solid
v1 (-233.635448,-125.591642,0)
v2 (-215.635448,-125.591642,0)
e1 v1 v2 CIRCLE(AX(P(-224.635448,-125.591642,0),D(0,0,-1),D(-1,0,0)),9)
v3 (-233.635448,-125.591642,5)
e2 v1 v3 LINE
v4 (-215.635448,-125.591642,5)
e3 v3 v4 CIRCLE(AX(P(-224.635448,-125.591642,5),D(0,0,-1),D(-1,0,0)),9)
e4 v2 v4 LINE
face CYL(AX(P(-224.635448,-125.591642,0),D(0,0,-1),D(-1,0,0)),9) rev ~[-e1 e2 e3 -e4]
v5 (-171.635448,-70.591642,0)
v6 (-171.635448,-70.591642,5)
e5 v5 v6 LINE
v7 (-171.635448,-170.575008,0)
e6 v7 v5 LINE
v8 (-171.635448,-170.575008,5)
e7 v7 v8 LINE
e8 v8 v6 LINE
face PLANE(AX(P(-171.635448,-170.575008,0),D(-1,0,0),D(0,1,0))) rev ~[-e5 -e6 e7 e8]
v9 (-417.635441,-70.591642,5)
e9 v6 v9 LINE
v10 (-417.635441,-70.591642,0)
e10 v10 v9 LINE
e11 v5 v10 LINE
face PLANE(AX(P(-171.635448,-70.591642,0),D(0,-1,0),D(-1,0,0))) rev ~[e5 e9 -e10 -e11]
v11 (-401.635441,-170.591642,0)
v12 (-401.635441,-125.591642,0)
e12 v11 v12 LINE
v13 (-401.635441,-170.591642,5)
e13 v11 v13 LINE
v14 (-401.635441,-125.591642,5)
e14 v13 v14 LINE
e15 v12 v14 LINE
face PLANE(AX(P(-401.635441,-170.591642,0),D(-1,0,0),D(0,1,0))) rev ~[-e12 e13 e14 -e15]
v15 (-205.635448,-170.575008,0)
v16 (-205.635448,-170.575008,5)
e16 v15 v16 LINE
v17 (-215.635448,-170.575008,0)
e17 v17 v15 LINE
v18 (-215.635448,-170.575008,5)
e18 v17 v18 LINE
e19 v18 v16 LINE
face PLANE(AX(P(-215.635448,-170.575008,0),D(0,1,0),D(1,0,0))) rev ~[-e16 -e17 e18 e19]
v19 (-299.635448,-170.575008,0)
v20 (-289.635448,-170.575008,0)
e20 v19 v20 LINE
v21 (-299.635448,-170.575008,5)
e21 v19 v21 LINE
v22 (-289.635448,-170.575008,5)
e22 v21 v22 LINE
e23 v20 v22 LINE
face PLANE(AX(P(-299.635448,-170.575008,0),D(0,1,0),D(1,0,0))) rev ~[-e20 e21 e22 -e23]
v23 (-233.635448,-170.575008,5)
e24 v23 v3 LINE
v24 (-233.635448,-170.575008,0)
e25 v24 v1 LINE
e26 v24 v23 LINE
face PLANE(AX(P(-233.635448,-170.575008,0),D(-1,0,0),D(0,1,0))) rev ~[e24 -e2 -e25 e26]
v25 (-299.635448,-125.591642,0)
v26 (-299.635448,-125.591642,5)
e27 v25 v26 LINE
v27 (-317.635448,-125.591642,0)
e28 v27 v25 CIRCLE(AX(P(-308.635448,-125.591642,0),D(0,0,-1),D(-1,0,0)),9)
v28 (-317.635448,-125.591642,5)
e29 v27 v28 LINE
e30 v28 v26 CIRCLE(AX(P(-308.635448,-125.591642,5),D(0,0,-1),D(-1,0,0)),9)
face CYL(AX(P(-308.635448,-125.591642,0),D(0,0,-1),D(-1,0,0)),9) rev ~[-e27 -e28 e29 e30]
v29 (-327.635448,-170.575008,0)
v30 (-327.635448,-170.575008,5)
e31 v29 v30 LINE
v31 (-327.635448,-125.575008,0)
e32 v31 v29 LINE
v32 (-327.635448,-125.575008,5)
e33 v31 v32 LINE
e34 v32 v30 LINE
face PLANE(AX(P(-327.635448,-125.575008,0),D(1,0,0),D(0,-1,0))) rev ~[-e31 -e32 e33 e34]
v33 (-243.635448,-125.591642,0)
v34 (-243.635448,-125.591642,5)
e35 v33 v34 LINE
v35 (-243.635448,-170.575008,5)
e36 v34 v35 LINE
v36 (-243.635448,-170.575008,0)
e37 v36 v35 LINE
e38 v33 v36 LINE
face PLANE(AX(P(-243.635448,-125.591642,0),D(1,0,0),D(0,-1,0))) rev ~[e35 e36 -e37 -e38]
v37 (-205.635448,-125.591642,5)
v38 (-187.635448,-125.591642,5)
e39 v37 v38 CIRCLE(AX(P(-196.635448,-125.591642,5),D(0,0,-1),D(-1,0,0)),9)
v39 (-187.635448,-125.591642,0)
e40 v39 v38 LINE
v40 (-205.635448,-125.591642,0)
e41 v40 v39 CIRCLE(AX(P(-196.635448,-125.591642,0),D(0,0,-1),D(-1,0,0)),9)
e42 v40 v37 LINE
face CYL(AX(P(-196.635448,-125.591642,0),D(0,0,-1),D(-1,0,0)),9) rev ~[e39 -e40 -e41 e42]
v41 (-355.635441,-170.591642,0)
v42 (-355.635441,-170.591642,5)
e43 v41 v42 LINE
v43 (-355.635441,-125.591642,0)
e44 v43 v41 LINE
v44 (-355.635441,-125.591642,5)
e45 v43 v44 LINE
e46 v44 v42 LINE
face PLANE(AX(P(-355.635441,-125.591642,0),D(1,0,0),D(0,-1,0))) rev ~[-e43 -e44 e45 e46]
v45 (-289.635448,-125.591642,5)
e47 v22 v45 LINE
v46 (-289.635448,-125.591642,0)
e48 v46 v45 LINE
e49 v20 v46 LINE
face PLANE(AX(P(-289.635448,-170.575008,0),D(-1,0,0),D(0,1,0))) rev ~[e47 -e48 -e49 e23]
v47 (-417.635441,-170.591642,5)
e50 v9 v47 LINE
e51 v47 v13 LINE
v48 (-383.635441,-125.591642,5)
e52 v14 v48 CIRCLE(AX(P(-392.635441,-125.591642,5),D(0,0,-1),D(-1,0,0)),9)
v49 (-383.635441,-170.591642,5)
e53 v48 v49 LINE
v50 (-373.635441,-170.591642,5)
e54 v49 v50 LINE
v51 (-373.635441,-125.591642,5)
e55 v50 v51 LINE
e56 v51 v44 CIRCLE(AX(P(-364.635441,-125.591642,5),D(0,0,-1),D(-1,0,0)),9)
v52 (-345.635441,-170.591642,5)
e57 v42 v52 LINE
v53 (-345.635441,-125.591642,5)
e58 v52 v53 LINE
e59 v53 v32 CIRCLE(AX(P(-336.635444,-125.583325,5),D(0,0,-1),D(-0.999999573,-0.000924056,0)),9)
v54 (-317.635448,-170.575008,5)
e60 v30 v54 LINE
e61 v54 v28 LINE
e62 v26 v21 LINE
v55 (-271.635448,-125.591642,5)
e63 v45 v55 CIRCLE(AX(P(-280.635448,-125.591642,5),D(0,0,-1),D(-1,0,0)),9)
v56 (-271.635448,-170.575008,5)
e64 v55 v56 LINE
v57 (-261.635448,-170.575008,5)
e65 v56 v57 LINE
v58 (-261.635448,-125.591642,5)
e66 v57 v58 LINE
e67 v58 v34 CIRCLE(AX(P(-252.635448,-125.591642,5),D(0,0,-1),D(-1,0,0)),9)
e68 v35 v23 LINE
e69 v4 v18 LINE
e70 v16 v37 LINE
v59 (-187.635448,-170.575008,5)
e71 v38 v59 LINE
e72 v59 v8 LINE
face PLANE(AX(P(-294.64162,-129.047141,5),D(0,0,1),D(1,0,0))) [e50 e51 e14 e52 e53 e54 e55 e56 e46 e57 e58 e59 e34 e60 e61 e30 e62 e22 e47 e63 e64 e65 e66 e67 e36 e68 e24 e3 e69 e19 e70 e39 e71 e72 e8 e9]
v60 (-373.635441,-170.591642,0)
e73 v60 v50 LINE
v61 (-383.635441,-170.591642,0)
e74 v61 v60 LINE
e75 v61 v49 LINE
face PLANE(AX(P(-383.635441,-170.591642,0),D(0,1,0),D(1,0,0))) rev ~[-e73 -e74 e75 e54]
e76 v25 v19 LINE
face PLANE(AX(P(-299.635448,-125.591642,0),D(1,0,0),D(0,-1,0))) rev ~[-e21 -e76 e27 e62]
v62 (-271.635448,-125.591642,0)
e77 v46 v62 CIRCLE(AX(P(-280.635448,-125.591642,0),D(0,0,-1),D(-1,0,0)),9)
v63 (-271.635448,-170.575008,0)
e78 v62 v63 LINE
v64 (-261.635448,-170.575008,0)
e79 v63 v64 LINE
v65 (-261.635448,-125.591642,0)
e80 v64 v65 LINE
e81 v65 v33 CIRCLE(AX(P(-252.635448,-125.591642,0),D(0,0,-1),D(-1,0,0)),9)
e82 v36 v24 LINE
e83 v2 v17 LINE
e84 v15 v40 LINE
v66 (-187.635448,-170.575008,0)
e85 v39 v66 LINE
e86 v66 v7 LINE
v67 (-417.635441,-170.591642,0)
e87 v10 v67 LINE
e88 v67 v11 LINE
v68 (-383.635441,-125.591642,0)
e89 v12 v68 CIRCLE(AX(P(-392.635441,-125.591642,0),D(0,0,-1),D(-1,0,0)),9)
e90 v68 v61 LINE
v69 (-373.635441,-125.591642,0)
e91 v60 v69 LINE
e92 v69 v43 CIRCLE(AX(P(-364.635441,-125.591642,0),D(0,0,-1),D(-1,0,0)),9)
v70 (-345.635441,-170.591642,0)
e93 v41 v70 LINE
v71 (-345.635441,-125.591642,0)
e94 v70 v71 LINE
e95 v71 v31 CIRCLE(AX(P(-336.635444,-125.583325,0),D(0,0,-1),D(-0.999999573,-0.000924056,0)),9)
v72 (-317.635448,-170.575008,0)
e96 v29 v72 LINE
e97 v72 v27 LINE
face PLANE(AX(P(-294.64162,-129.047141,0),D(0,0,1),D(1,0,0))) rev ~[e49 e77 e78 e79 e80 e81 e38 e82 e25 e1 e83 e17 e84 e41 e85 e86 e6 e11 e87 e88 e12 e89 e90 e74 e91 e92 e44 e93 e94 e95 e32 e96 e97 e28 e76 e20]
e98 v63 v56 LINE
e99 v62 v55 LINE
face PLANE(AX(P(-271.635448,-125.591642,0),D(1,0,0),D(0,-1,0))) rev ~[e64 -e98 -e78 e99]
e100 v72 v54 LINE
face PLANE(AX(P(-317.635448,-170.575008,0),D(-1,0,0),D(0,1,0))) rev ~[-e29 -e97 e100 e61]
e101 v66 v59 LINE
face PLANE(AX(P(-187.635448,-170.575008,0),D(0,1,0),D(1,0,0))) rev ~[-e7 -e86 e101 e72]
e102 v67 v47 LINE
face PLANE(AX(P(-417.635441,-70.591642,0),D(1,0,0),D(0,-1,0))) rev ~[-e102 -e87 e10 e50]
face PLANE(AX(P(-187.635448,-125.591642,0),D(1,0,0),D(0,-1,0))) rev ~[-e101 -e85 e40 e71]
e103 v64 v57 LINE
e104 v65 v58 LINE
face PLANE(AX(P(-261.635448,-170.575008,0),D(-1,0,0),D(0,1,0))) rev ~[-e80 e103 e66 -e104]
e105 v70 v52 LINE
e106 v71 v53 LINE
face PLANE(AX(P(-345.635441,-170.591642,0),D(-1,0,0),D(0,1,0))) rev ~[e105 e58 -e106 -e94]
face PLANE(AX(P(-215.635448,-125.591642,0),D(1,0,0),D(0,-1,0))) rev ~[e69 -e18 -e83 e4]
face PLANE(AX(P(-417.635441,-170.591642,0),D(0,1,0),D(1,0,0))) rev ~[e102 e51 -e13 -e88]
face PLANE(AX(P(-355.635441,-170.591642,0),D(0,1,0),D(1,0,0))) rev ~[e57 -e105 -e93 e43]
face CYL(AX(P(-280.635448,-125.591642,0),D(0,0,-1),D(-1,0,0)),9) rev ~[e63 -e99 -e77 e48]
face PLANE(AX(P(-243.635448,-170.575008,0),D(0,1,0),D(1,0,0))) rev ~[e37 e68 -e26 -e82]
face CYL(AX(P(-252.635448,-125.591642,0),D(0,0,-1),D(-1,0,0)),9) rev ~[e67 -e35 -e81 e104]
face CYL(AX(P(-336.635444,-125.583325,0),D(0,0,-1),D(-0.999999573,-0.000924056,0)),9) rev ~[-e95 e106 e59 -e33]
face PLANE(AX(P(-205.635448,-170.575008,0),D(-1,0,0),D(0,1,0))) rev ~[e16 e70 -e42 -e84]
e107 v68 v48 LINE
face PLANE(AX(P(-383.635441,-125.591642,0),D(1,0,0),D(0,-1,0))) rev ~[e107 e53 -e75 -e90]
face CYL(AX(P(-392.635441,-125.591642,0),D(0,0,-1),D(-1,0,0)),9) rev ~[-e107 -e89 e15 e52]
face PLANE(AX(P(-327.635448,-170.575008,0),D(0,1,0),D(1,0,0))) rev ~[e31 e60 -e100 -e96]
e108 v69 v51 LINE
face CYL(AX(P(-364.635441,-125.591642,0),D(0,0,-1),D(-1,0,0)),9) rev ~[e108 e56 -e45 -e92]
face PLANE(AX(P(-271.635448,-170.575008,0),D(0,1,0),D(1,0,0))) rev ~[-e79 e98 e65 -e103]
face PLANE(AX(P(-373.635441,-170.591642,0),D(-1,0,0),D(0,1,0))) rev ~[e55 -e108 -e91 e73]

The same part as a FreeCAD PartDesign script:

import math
import FreeCAD as App
import Part
import Sketcher

V = App.Vector

doc = App.newDocument("Part")
params = doc.addObject("Spreadsheet::Sheet", "Params")
for row, (alias, value) in enumerate([
    ("sketch1_radius", "9 mm"),
    ("sketch1_width", "16 mm"),
    ("sketch1_width2", "10 mm"),
    ("sketch1_height", "100 mm"),
    ("sketch1_height2", "45 mm"),
    ("pad1_length", "5 mm"),
], start=1):
    params.set(f"A{row}", alias)
    params.set(f"B{row}", "=" + value)
    params.setAlias(f"B{row}", alias)

body = doc.addObject("PartDesign::Body", "Body")

# Sketch on XY plane
sketch1 = body.newObject("Sketcher::SketchObject", "Sketch")
sketch1.AttachmentSupport = (doc.getObject("XY_Plane"), [""])
sketch1.MapMode = "FlatFace"
sketch1.addGeometry([
    Part.LineSegment(V(-171.635448, -70.591642, 0), V(-417.635441, -70.591642, 0)),  # 0
    Part.LineSegment(V(-417.635441, -70.591642, 0), V(-417.635441, -170.591642, 0)),  # 1
    Part.LineSegment(V(-417.635441, -170.591642, 0), V(-401.635441, -170.591642, 0)),  # 2
    Part.LineSegment(V(-401.635441, -170.591642, 0), V(-401.635441, -125.591642, 0)),  # 3
    Part.ArcOfCircle(Part.Circle(V(-392.635441, -125.591642, 0), V(0, 0, 1), 9), math.radians(0), math.radians(180)),  # 4
    Part.LineSegment(V(-383.635441, -125.591642, 0), V(-383.635441, -170.591642, 0)),  # 5
    Part.LineSegment(V(-383.635441, -170.591642, 0), V(-373.635441, -170.591642, 0)),  # 6
    Part.LineSegment(V(-373.635441, -170.591642, 0), V(-373.635441, -125.591642, 0)),  # 7
    Part.ArcOfCircle(Part.Circle(V(-364.635441, -125.591642, 0), V(0, 0, 1), 9), math.radians(0), math.radians(180)),  # 8
    Part.LineSegment(V(-355.635441, -125.591642, 0), V(-355.635441, -170.591642, 0)),  # 9
    Part.LineSegment(V(-355.635441, -170.591642, 0), V(-345.635441, -170.591642, 0)),  # 10
    Part.LineSegment(V(-345.635441, -170.591642, 0), V(-345.635441, -125.591642, 0)),  # 11
    Part.ArcOfCircle(Part.Circle(V(-336.635445, -125.583326, 0), V(0, 0, 1), 9), math.radians(0.052951), math.radians(180.052944)),  # 12
    Part.LineSegment(V(-327.635448, -125.575008, 0), V(-327.635448, -170.575008, 0)),  # 13
    Part.LineSegment(V(-327.635448, -170.575008, 0), V(-317.635448, -170.575008, 0)),  # 14
    Part.LineSegment(V(-317.635448, -170.575008, 0), V(-317.635448, -125.591642, 0)),  # 15
    Part.ArcOfCircle(Part.Circle(V(-308.635448, -125.591642, 0), V(0, 0, 1), 9), math.radians(0), math.radians(180)),  # 16
    Part.LineSegment(V(-299.635448, -125.591642, 0), V(-299.635448, -170.575008, 0)),  # 17
    Part.LineSegment(V(-299.635448, -170.575008, 0), V(-289.635448, -170.575008, 0)),  # 18
    Part.LineSegment(V(-289.635448, -170.575008, 0), V(-289.635448, -125.591642, 0)),  # 19
    Part.ArcOfCircle(Part.Circle(V(-280.635448, -125.591642, 0), V(0, 0, 1), 9), math.radians(0), math.radians(180)),  # 20
    Part.LineSegment(V(-271.635448, -125.591642, 0), V(-271.635448, -170.575008, 0)),  # 21
    Part.LineSegment(V(-271.635448, -170.575008, 0), V(-261.635448, -170.575008, 0)),  # 22
    Part.LineSegment(V(-261.635448, -170.575008, 0), V(-261.635448, -125.591642, 0)),  # 23
    Part.ArcOfCircle(Part.Circle(V(-252.635448, -125.591642, 0), V(0, 0, 1), 9), math.radians(0), math.radians(180)),  # 24
    Part.LineSegment(V(-243.635448, -125.591642, 0), V(-243.635448, -170.575008, 0)),  # 25
    Part.LineSegment(V(-243.635448, -170.575008, 0), V(-233.635448, -170.575008, 0)),  # 26
    Part.LineSegment(V(-233.635448, -170.575008, 0), V(-233.635448, -125.591642, 0)),  # 27
    Part.ArcOfCircle(Part.Circle(V(-224.635448, -125.591642, 0), V(0, 0, 1), 9), math.radians(0), math.radians(180)),  # 28
    Part.LineSegment(V(-215.635448, -125.591642, 0), V(-215.635448, -170.575008, 0)),  # 29
    Part.LineSegment(V(-215.635448, -170.575008, 0), V(-205.635448, -170.575008, 0)),  # 30
    Part.LineSegment(V(-205.635448, -170.575008, 0), V(-205.635448, -125.591642, 0)),  # 31
    Part.ArcOfCircle(Part.Circle(V(-196.635448, -125.591642, 0), V(0, 0, 1), 9), math.radians(0), math.radians(180)),  # 32
    Part.LineSegment(V(-187.635448, -125.591642, 0), V(-187.635448, -170.575008, 0)),  # 33
    Part.LineSegment(V(-187.635448, -170.575008, 0), V(-171.635448, -170.575008, 0)),  # 34
    Part.LineSegment(V(-171.635448, -170.575008, 0), V(-171.635448, -70.591642, 0)),  # 35
], False)
sketch1.addConstraint([
    Sketcher.Constraint("Coincident", 0, 2, 1, 1),
    Sketcher.Constraint("Coincident", 1, 2, 2, 1),
    Sketcher.Constraint("Coincident", 2, 2, 3, 1),
    Sketcher.Constraint("Tangent", 3, 2, 4, 2),
    Sketcher.Constraint("Tangent", 4, 1, 5, 1),
    Sketcher.Constraint("Coincident", 5, 2, 6, 1),
    Sketcher.Constraint("Coincident", 6, 2, 7, 1),
    Sketcher.Constraint("Tangent", 7, 2, 8, 2),
    Sketcher.Constraint("Tangent", 8, 1, 9, 1),
    Sketcher.Constraint("Coincident", 9, 2, 10, 1),
    Sketcher.Constraint("Coincident", 10, 2, 11, 1),
    Sketcher.Constraint("Coincident", 11, 2, 12, 2),
    Sketcher.Constraint("Coincident", 12, 1, 13, 1),
    Sketcher.Constraint("Coincident", 13, 2, 14, 1),
    Sketcher.Constraint("Coincident", 14, 2, 15, 1),
    Sketcher.Constraint("Tangent", 15, 2, 16, 2),
    Sketcher.Constraint("Tangent", 16, 1, 17, 1),
    Sketcher.Constraint("Coincident", 17, 2, 18, 1),
    Sketcher.Constraint("Coincident", 18, 2, 19, 1),
    Sketcher.Constraint("Tangent", 19, 2, 20, 2),
    Sketcher.Constraint("Tangent", 20, 1, 21, 1),
    Sketcher.Constraint("Coincident", 21, 2, 22, 1),
    Sketcher.Constraint("Coincident", 22, 2, 23, 1),
    Sketcher.Constraint("Tangent", 23, 2, 24, 2),
    Sketcher.Constraint("Tangent", 24, 1, 25, 1),
    Sketcher.Constraint("Coincident", 25, 2, 26, 1),
    Sketcher.Constraint("Coincident", 26, 2, 27, 1),
    Sketcher.Constraint("Tangent", 27, 2, 28, 2),
    Sketcher.Constraint("Tangent", 28, 1, 29, 1),
    Sketcher.Constraint("Coincident", 29, 2, 30, 1),
    Sketcher.Constraint("Coincident", 30, 2, 31, 1),
    Sketcher.Constraint("Tangent", 31, 2, 32, 2),
    Sketcher.Constraint("Tangent", 32, 1, 33, 1),
    Sketcher.Constraint("Coincident", 33, 2, 34, 1),
    Sketcher.Constraint("Coincident", 34, 2, 35, 1),
    Sketcher.Constraint("Coincident", 35, 2, 0, 1),
    Sketcher.Constraint("Horizontal", 0),
    Sketcher.Constraint("Vertical", 1),
    Sketcher.Constraint("Horizontal", 2),
    Sketcher.Constraint("Vertical", 3),
    Sketcher.Constraint("Vertical", 5),
    Sketcher.Constraint("Horizontal", 6),
    Sketcher.Constraint("Vertical", 7),
    Sketcher.Constraint("Vertical", 9),
    Sketcher.Constraint("Horizontal", 10),
    Sketcher.Constraint("Vertical", 11),
    Sketcher.Constraint("Vertical", 13),
    Sketcher.Constraint("Horizontal", 14),
    Sketcher.Constraint("Vertical", 15),
    Sketcher.Constraint("Vertical", 17),
    Sketcher.Constraint("Horizontal", 18),
    Sketcher.Constraint("Vertical", 19),
    Sketcher.Constraint("Vertical", 21),
    Sketcher.Constraint("Horizontal", 22),
    Sketcher.Constraint("Vertical", 23),
    Sketcher.Constraint("Vertical", 25),
    Sketcher.Constraint("Horizontal", 26),
    Sketcher.Constraint("Vertical", 27),
    Sketcher.Constraint("Vertical", 29),
    Sketcher.Constraint("Horizontal", 30),
    Sketcher.Constraint("Vertical", 31),
    Sketcher.Constraint("Vertical", 33),
    Sketcher.Constraint("Horizontal", 34),
    Sketcher.Constraint("Vertical", 35),
    Sketcher.Constraint("Equal", 4, 8),
    Sketcher.Constraint("Equal", 8, 12),
    Sketcher.Constraint("Equal", 12, 16),
    Sketcher.Constraint("Equal", 16, 20),
    Sketcher.Constraint("Equal", 20, 24),
    Sketcher.Constraint("Equal", 24, 28),
    Sketcher.Constraint("Equal", 28, 32),
    Sketcher.Constraint("Horizontal", 4, 3, 8, 3),
    Sketcher.Constraint("Horizontal", 8, 3, 16, 3),
    Sketcher.Constraint("Horizontal", 16, 3, 20, 3),
    Sketcher.Constraint("Horizontal", 20, 3, 24, 3),
    Sketcher.Constraint("Horizontal", 24, 3, 28, 3),
    Sketcher.Constraint("Horizontal", 28, 3, 32, 3),
    Sketcher.Constraint("Horizontal", 2, 2, 5, 2),
    Sketcher.Constraint("Horizontal", 6, 2, 9, 2),
    Sketcher.Constraint("Horizontal", 8, 1, 11, 2),
    Sketcher.Constraint("Horizontal", 14, 2, 17, 2),
    Sketcher.Constraint("Horizontal", 18, 2, 21, 2),
    Sketcher.Constraint("Horizontal", 22, 2, 25, 2),
    Sketcher.Constraint("Horizontal", 26, 2, 29, 2),
    Sketcher.Constraint("Horizontal", 30, 2, 33, 2),
    Sketcher.Constraint("Equal", 6, 10),
    Sketcher.Constraint("Equal", 10, 14),
    Sketcher.Constraint("Equal", 14, 18),
    Sketcher.Constraint("Equal", 18, 22),
    Sketcher.Constraint("Equal", 22, 26),
    Sketcher.Constraint("Equal", 26, 30),
    Sketcher.Constraint("Equal", 2, 34),
    Sketcher.Constraint("Equal", 11, 13),
    Sketcher.Constraint("Radius", 4, 9.0),
    Sketcher.Constraint("DistanceX", 2, 1, 2, 2, 16.0),
    Sketcher.Constraint("DistanceX", 6, 1, 6, 2, 10.0),
    Sketcher.Constraint("DistanceY", 1, 2, 1, 1, 100.0),
    Sketcher.Constraint("DistanceY", 3, 1, 3, 2, 45.0),
    Sketcher.Constraint("DistanceY", 15, 1, 15, 2, 44.983366),
    Sketcher.Constraint("DistanceX", 4, 3, -1, 1, 392.635441),
    Sketcher.Constraint("DistanceY", 4, 3, -1, 1, 125.591642),
    Sketcher.Constraint("DistanceY", 12, 3, -1, 1, 125.583326),
])
sketch1.setExpression("Constraints[93]", "Params.sketch1_radius")
sketch1.setExpression("Constraints[94]", "Params.sketch1_width")
sketch1.setExpression("Constraints[95]", "Params.sketch1_width2")
sketch1.setExpression("Constraints[96]", "Params.sketch1_height")
sketch1.setExpression("Constraints[97]", "Params.sketch1_height2")
pad1 = body.newObject("PartDesign::Pad", "Pad")
pad1.Profile = sketch1
pad1.setExpression("Length", "Params.pad1_length")

doc.recompute()
